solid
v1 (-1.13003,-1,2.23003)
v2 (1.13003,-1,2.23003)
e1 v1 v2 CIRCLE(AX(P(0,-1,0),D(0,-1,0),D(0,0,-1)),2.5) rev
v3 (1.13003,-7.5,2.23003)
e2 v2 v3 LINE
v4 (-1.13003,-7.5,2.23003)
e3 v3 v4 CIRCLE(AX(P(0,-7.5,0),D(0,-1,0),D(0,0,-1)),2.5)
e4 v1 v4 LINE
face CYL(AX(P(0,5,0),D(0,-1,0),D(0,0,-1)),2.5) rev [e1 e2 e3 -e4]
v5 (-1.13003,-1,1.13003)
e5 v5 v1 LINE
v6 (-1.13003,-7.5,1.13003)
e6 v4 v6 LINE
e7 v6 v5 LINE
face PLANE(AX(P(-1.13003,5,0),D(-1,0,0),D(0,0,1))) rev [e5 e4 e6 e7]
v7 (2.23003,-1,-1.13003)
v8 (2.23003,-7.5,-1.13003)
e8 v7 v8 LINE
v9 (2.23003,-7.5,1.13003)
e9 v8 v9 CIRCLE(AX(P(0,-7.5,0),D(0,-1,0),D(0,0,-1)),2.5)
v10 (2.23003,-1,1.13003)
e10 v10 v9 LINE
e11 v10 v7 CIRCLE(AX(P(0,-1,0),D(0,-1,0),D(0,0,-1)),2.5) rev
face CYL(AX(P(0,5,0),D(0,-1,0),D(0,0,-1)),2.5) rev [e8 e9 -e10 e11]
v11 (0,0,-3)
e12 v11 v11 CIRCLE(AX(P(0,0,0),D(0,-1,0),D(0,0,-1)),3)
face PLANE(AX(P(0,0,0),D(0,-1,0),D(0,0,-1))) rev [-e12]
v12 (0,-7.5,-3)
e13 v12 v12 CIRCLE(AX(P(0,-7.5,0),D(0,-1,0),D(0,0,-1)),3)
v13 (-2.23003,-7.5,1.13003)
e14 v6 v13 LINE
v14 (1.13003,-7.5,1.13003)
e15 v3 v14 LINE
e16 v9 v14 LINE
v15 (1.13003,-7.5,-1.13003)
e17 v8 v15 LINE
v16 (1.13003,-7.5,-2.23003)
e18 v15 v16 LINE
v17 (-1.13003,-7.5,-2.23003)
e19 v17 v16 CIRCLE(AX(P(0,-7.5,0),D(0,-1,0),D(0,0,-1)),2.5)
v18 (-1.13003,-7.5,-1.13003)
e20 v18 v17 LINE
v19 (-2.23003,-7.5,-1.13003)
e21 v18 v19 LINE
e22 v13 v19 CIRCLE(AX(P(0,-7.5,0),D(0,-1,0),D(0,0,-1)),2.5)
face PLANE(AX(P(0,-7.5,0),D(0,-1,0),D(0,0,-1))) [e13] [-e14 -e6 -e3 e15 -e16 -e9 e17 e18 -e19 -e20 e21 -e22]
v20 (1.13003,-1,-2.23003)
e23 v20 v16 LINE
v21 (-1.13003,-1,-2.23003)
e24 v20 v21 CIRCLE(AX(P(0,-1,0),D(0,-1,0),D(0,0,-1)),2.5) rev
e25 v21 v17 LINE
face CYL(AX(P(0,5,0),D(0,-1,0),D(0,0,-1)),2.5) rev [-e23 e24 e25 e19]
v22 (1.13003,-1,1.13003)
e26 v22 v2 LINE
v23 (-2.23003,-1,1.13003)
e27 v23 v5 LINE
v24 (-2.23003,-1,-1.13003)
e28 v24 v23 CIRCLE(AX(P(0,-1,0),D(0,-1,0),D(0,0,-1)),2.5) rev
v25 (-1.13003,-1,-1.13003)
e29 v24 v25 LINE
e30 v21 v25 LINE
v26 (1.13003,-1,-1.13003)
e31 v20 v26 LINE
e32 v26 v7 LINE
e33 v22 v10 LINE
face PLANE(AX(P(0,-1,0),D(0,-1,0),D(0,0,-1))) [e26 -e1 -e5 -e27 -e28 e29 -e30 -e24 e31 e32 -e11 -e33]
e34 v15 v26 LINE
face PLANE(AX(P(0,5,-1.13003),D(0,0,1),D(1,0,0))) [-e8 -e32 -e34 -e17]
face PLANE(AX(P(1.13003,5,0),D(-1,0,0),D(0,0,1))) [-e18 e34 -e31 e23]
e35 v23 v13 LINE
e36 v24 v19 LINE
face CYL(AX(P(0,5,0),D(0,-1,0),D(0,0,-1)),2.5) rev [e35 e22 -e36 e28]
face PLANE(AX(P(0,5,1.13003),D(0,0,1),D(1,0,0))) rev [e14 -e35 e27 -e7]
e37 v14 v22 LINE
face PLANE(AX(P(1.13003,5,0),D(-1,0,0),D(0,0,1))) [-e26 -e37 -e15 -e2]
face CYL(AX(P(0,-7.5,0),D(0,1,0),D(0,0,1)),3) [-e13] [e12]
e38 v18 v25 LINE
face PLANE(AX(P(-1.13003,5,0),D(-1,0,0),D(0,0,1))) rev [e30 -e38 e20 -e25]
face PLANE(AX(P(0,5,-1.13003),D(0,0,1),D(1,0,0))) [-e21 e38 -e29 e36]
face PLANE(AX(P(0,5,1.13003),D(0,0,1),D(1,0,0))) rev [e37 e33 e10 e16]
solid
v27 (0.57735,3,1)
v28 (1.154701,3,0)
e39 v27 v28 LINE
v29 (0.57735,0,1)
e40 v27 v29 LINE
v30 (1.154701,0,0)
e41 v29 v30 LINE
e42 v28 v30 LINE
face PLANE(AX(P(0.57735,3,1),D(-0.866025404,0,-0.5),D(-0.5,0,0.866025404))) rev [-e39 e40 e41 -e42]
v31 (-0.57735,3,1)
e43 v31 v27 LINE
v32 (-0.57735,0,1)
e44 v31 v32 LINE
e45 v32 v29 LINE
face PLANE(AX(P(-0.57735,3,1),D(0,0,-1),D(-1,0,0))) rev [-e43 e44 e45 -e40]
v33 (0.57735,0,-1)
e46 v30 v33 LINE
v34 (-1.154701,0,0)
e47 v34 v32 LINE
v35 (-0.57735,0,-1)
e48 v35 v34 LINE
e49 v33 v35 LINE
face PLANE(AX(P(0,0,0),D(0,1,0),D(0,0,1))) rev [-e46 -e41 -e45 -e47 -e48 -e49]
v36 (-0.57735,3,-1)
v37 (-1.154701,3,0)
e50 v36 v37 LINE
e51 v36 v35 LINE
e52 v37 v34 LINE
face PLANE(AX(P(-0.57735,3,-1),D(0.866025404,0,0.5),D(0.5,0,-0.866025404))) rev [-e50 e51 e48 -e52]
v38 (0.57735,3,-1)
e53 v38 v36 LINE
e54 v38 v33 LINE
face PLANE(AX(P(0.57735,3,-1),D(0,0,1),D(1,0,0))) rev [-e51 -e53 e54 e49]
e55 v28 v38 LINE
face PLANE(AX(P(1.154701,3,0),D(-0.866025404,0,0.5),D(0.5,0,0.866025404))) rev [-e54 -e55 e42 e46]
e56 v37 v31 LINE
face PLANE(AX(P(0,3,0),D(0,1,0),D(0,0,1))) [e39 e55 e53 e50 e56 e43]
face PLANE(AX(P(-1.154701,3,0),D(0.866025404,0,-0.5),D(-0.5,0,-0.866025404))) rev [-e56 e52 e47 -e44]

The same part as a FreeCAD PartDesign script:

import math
import FreeCAD as App
import Part
import Sketcher

V = App.Vector
Q = App.Units.Quantity


def add_polygon(sketch, points):
    """Adds a closed chain of lines whose ends are joined by coincident constraints."""
    first, n = sketch.GeometryCount, len(points)
    for a, b in zip(points, points[1:] + points[:1]):
        sketch.addGeometry(Part.LineSegment(App.Vector(*a, 0), App.Vector(*b, 0)), False)
    for i in range(n):
        sketch.addConstraint(Sketcher.Constraint("Coincident", first + i, 2, first + (i + 1) % n, 1))

doc = App.newDocument("Part")
body = doc.addObject("PartDesign::Body", "Body")

# Sketch on XZ plane
sketch1 = body.newObject("Sketcher::SketchObject", "Sketch")
sketch1.AttachmentSupport = (doc.getObject("XZ_Plane"), [""])
sketch1.MapMode = "FlatFace"
add_polygon(sketch1, [(0.57735, -1), (-0.57735, -1), (-1.154701, 0), (-0.57735, 1), (0.57735, 1), (1.154701, 0)])  # lines 0-5
sketch1.addConstraint(Sketcher.Constraint("Horizontal", 0))
sketch1.addConstraint(Sketcher.Constraint("Horizontal", 3))
sketch1.addConstraint(Sketcher.Constraint("Symmetric", 0, 2, 3, 2, -1, 1))
sketch1.addConstraint(Sketcher.Constraint("Symmetric", 1, 2, 4, 2, -1, 1))
sketch1.addConstraint(Sketcher.Constraint("PointOnObject", 1, 2, -1))
sketch1.addConstraint(Sketcher.Constraint("Parallel", 2, 5))
sketch1.addConstraint(Sketcher.Constraint("Vertical", 0, 2, 2, 2))
sketch1.addConstraint(Sketcher.Constraint("Angle", 1, Q("120 deg")))
sketch1.addConstraint(Sketcher.Constraint("DistanceY", 0, 2, -1, 1, Q("1 mm")))
sketch1.addConstraint(Sketcher.Constraint("DistanceX", 0, 2, 0, 1, Q("1.154701 mm")))
pad1 = body.newObject("PartDesign::Pad", "Pad")
pad1.Profile = sketch1
pad1.Length = 3
pad1.Reversed = True
body2 = doc.addObject("PartDesign::Body", "Body001")

# Sketch on XZ plane
sketch2 = body2.newObject("Sketcher::SketchObject", "Sketch001")
sketch2.AttachmentSupport = (doc.getObject("XZ_Plane001"), [""])
sketch2.MapMode = "FlatFace"
sketch2.addGeometry(Part.Circle(V(0, 0, 0), V(0, 0, 1), 3), False)
sketch2.addConstraint(Sketcher.Constraint("Coincident", 0, 3, -1, 1))
sketch2.addConstraint(Sketcher.Constraint("Diameter", 0, Q("6 mm")))
pad2 = body2.newObject("PartDesign::Pad", "Pad001")
pad2.Profile = sketch2
pad2.Length = 7.5

# Sketch on XZ plane
sketch3 = body2.newObject("Sketcher::SketchObject", "Sketch002")
sketch3.AttachmentSupport = (doc.getObject("XZ_Plane001"), [""])
sketch3.MapMode = "FlatFace"
sketch3.AttachmentOffset = App.Placement(V(0, 0, 7.5), App.Rotation())
sketch3.addGeometry(Part.LineSegment(V(-1.13003, -1.13003, 0), V(-1.13003, -2.23003, 0)), False)
sketch3.addGeometry(Part.ArcOfCircle(Part.Circle(V(0, 0, 0), V(0, 0, 1), 2.5), math.radians(-116.872839), math.radians(-63.127161)), False)
sketch3.addGeometry(Part.LineSegment(V(1.13003, -2.23003, 0), V(1.13003, -1.13003, 0)), False)
sketch3.addGeometry(Part.LineSegment(V(1.13003, -1.13003, 0), V(2.23003, -1.13003, 0)), False)
sketch3.addGeometry(Part.ArcOfCircle(Part.Circle(V(0, 0, 0), V(0, 0, 1), 2.5), math.radians(-26.872839), math.radians(26.872839)), False)
sketch3.addGeometry(Part.LineSegment(V(2.23003, 1.13003, 0), V(1.13003, 1.13003, 0)), False)
sketch3.addGeometry(Part.LineSegment(V(1.13003, 1.13003, 0), V(1.13003, 2.23003, 0)), False)
sketch3.addGeometry(Part.ArcOfCircle(Part.Circle(V(0, 0, 0), V(0, 0, 1), 2.5), math.radians(63.127161), math.radians(116.872839)), False)
sketch3.addGeometry(Part.LineSegment(V(-1.13003, 2.23003, 0), V(-1.13003, 1.13003, 0)), False)
sketch3.addGeometry(Part.LineSegment(V(-1.13003, 1.13003, 0), V(-2.23003, 1.13003, 0)), False)
sketch3.addGeometry(Part.ArcOfCircle(Part.Circle(V(0, 0, 0), V(0, 0, 1), 2.5), math.radians(153.127161), math.radians(206.872839)), False)
sketch3.addGeometry(Part.LineSegment(V(-2.23003, -1.13003, 0), V(-1.13003, -1.13003, 0)), False)
sketch3.addConstraint(Sketcher.Constraint("Coincident", 0, 2, 1, 1))
sketch3.addConstraint(Sketcher.Constraint("Coincident", 1, 2, 2, 1))
sketch3.addConstraint(Sketcher.Constraint("Coincident", 2, 2, 3, 1))
sketch3.addConstraint(Sketcher.Constraint("Coincident", 3, 2, 4, 1))
sketch3.addConstraint(Sketcher.Constraint("Coincident", 4, 2, 5, 1))
sketch3.addConstraint(Sketcher.Constraint("Coincident", 5, 2, 6, 1))
sketch3.addConstraint(Sketcher.Constraint("Coincident", 6, 2, 7, 1))
sketch3.addConstraint(Sketcher.Constraint("Coincident", 7, 2, 8, 1))
sketch3.addConstraint(Sketcher.Constraint("Coincident", 8, 2, 9, 1))
sketch3.addConstraint(Sketcher.Constraint("Coincident", 9, 2, 10, 1))
sketch3.addConstraint(Sketcher.Constraint("Coincident", 10, 2, 11, 1))
sketch3.addConstraint(Sketcher.Constraint("Coincident", 11, 2, 0, 1))
sketch3.addConstraint(Sketcher.Constraint("Vertical", 0))
sketch3.addConstraint(Sketcher.Constraint("Vertical", 2))
sketch3.addConstraint(Sketcher.Constraint("Horizontal", 3))
sketch3.addConstraint(Sketcher.Constraint("Horizontal", 5))
sketch3.addConstraint(Sketcher.Constraint("Vertical", 6))
sketch3.addConstraint(Sketcher.Constraint("Vertical", 8))
sketch3.addConstraint(Sketcher.Constraint("Horizontal", 9))
sketch3.addConstraint(Sketcher.Constraint("Horizontal", 11))
sketch3.addConstraint(Sketcher.Constraint("Coincident", 1, 3, -1, 1))
sketch3.addConstraint(Sketcher.Constraint("Coincident", 4, 3, -1, 1))
sketch3.addConstraint(Sketcher.Constraint("Coincident", 7, 3, -1, 1))
sketch3.addConstraint(Sketcher.Constraint("Coincident", 10, 3, -1, 1))
sketch3.addConstraint(Sketcher.Constraint("Equal", 1, 4))
sketch3.addConstraint(Sketcher.Constraint("Equal", 4, 7))
sketch3.addConstraint(Sketcher.Constraint("Equal", 7, 10))
sketch3.addConstraint(Sketcher.Constraint("Symmetric", 2, 2, 8, 2, -1, 1))
sketch3.addConstraint(Sketcher.Constraint("Symmetric", 5, 2, 11, 2, -1, 1))
sketch3.addConstraint(Sketcher.Constraint("Symmetric", 5, 2, 8, 2, -2))
sketch3.addConstraint(Sketcher.Constraint("Equal", 11, 0))
sketch3.addConstraint(Sketcher.Constraint("Radius", 1, Q("2.5 mm")))
sketch3.addConstraint(Sketcher.Constraint("DistanceX", 3, 1, 3, 2, Q("1.1 mm")))
pocket1 = body2.newObject("PartDesign::Pocket", "Pocket")
pocket1.Profile = sketch3
pocket1.Length = 6.5

doc.recompute()
